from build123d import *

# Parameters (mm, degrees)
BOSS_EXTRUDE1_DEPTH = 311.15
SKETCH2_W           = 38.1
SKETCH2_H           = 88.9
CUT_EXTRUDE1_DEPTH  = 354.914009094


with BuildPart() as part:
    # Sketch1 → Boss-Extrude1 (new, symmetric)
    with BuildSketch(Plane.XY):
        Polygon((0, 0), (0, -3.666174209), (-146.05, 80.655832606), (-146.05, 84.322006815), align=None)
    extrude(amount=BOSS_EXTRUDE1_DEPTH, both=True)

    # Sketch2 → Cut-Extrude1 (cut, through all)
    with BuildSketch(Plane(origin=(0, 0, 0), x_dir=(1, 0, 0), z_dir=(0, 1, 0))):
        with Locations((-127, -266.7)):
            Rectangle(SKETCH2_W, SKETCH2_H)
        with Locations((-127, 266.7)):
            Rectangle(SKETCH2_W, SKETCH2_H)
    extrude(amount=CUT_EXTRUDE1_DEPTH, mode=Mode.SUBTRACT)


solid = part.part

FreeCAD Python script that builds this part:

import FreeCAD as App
import Part
import Sketcher
Q = App.Units.Quantity


def add_polygon(sketch, points):
    """Adds a closed chain of lines whose ends are joined by coincident constraints."""
    first, n = sketch.GeometryCount, len(points)
    for a, b in zip(points, points[1:] + points[:1]):
        sketch.addGeometry(Part.LineSegment(App.Vector(*a, 0), App.Vector(*b, 0)), False)
    for i in range(n):
        sketch.addConstraint(Sketcher.Constraint("Coincident", first + i, 2, first + (i + 1) % n, 1))

doc = App.newDocument("Part")
body = doc.addObject("PartDesign::Body", "Body")

# Sketch on XY plane
sketch1 = body.newObject("Sketcher::SketchObject", "Sketch")
sketch1.AttachmentSupport = (doc.getObject("XY_Plane"), [""])
sketch1.MapMode = "FlatFace"
add_polygon(sketch1, [(0, -3.666174), (0, 0), (-146.05, 84.322007), (-146.05, 80.655833)])  # lines 0-3
sketch1.addConstraint([
    Sketcher.Constraint("Vertical", 0),
    Sketcher.Constraint("Vertical", 2),
    Sketcher.Constraint("Coincident", 0, 2, -1, 1),
    Sketcher.Constraint("Parallel", 1, 3),
    Sketcher.Constraint("Angle", 1, Q("150 deg")),
    Sketcher.Constraint("DistanceX", 1, 2, -1, 1, Q("5.75 in")),
    Sketcher.Constraint("DistanceY", 0, 1, 0, 2, Q("3.666174 mm")),
])
pad1 = body.newObject("PartDesign::Pad", "Pad")
pad1.Profile = sketch1
pad1.Length = Q("24.5 in")
pad1.Midplane = True

# Sketch on XZ plane
sketch2 = body.newObject("Sketcher::SketchObject", "Sketch001")
sketch2.AttachmentSupport = (doc.getObject("XZ_Plane"), [""])
sketch2.MapMode = "FlatFace"
add_polygon(sketch2, [(-146.05, 222.25), (-146.05, 311.15), (-107.95, 311.15), (-107.95, 222.25)])  # lines 0-3
add_polygon(sketch2, [(-146.05, -311.15), (-146.05, -222.25), (-107.95, -222.25), (-107.95, -311.15)])  # lines 4-7
sketch2.addConstraint([
    Sketcher.Constraint("Vertical", 0),
    Sketcher.Constraint("Horizontal", 1),
    Sketcher.Constraint("Vertical", 2),
    Sketcher.Constraint("Horizontal", 3),
    Sketcher.Constraint("Vertical", 4),
    Sketcher.Constraint("Horizontal", 5),
    Sketcher.Constraint("Vertical", 6),
    Sketcher.Constraint("Horizontal", 7),
    Sketcher.Constraint("Symmetric", 3, 2, 4, 2, -1),
    Sketcher.Constraint("Symmetric", 1, 2, 6, 2, -1),
    Sketcher.Constraint("DistanceX", 1, 1, 1, 2, Q("1.5 in")),
    Sketcher.Constraint("DistanceY", 0, 1, 0, 2, Q("3.5 in")),
    Sketcher.Constraint("DistanceY", 4, 2, 0, 2, Q("21 in")),
    Sketcher.Constraint("DistanceX", 0, 2, -1, 1, Q("5.75 in")),
])
pocket1 = body.newObject("PartDesign::Pocket", "Pocket")
pocket1.Profile = sketch2
pocket1.Type = "ThroughAll"

doc.recompute()
